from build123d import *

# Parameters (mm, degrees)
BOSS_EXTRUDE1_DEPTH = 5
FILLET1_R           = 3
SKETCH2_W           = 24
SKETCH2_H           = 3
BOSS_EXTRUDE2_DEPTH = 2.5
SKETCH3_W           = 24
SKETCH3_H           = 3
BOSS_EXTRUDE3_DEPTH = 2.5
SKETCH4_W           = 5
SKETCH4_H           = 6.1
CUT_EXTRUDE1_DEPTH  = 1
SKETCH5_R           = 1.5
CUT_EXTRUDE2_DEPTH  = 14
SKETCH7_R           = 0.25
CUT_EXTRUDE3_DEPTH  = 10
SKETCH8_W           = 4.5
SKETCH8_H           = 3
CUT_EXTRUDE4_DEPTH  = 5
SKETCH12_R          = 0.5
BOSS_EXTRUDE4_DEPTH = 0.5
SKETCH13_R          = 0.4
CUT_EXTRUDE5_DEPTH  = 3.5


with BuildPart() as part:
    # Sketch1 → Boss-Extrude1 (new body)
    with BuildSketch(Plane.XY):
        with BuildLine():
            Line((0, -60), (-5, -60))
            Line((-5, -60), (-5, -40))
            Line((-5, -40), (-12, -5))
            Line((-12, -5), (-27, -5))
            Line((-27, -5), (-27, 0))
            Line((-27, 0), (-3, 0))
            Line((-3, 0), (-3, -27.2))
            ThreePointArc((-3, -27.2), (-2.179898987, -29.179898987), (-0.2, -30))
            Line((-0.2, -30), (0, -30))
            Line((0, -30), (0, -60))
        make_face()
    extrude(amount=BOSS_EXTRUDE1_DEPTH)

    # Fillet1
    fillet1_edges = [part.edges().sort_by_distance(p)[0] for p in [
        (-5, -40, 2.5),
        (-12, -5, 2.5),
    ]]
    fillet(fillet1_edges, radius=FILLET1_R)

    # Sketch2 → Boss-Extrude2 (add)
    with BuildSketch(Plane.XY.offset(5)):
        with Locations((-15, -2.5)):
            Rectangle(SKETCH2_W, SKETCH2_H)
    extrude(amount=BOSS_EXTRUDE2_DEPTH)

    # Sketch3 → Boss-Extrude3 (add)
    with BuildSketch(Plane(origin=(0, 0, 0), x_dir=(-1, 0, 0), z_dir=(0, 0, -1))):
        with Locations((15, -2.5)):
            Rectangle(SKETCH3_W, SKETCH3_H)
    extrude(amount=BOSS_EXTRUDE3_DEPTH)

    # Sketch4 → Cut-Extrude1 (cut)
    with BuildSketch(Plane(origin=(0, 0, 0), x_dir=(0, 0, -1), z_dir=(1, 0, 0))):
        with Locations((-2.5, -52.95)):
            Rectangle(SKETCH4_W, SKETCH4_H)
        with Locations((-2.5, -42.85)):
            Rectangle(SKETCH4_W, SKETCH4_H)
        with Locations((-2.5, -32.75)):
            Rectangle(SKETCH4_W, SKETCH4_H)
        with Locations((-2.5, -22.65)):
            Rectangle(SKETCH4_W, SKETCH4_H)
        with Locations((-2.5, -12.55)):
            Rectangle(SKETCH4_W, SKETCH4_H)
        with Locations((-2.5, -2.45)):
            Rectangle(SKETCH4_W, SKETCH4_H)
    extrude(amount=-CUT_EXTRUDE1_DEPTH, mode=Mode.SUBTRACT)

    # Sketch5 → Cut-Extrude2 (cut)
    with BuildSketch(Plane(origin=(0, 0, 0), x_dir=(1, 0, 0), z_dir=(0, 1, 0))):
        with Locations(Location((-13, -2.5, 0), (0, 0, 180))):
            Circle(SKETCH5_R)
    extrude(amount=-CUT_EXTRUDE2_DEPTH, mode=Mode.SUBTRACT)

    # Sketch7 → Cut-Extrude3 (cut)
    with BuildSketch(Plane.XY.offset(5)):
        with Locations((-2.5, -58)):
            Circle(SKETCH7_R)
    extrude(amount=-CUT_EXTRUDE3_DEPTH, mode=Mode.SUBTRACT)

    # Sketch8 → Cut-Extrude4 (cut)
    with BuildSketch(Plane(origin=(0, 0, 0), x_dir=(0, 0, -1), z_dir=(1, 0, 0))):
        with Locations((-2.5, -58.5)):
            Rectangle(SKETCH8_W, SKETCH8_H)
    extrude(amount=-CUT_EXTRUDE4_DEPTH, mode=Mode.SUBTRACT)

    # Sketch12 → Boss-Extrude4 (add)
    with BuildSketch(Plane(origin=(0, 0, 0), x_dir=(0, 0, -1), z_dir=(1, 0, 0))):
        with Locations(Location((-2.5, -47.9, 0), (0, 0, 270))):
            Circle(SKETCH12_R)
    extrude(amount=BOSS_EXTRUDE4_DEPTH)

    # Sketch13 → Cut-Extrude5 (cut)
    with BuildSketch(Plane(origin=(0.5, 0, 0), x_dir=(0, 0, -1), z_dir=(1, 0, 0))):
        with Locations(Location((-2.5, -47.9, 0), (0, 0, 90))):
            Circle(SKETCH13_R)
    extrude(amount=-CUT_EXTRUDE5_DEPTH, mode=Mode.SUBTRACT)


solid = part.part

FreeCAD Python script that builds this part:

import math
import FreeCAD as App
import Part
import Sketcher
Q = App.Units.Quantity


def edges_at(feature, points):
    """Names of the edges that pass closest to the given points."""
    edges = feature.Shape.Edges
    near = lambda p: min(range(len(edges)), key=lambda i: edges[i].distToShape(Part.Vertex(*p))[0])
    return sorted({f"Edge{near(p) + 1}" for p in points})

doc = App.newDocument("Part")
body = doc.addObject("PartDesign::Body", "Body")

sketch1 = doc.addObject("Sketcher::SketchObject", "Sketch")
body.addObject(sketch1)
sketch1.AttachmentSupport = (doc.XY_Plane, [""])
sketch1.MapMode = "FlatFace"
sketch1.addGeometry([
    Part.LineSegment(App.Vector(-5, -60, 0), App.Vector(0, -60, 0)),
    Part.LineSegment(App.Vector(0, -60, 0), App.Vector(0, -30, 0)),
    Part.LineSegment(App.Vector(0, -30, 0), App.Vector(-0.2, -30, 0)),
    Part.ArcOfCircle(Part.Circle(App.Vector(-0.2, -27.2, 0), App.Vector(0, 0, 1), 2.8), math.radians(-180), math.radians(-90)),
    Part.LineSegment(App.Vector(-3, -27.2, 0), App.Vector(-3, 0, 0)),
    Part.LineSegment(App.Vector(-3, 0, 0), App.Vector(-27, 0, 0)),
    Part.LineSegment(App.Vector(-27, 0, 0), App.Vector(-27, -5, 0)),
    Part.LineSegment(App.Vector(-27, -5, 0), App.Vector(-12, -5, 0)),
    Part.LineSegment(App.Vector(-12, -5, 0), App.Vector(-5, -40, 0)),
    Part.LineSegment(App.Vector(-5, -40, 0), App.Vector(-5, -60, 0)),
], False)
sketch1.addConstraint([
    Sketcher.Constraint("Coincident", 0, 2, 1, 1),
    Sketcher.Constraint("Coincident", 1, 2, 2, 1),
    Sketcher.Constraint("Tangent", 2, 2, 3, 2),
    Sketcher.Constraint("Tangent", 3, 1, 4, 1),
    Sketcher.Constraint("Coincident", 4, 2, 5, 1),
    Sketcher.Constraint("Coincident", 5, 2, 6, 1),
    Sketcher.Constraint("Coincident", 6, 2, 7, 1),
    Sketcher.Constraint("Coincident", 7, 2, 8, 1),
    Sketcher.Constraint("Coincident", 8, 2, 9, 1),
    Sketcher.Constraint("Coincident", 9, 2, 0, 1),
    Sketcher.Constraint("Horizontal", 0),
    Sketcher.Constraint("Vertical", 1),
    Sketcher.Constraint("Horizontal", 2),
    Sketcher.Constraint("Vertical", 4),
    Sketcher.Constraint("Horizontal", 5),
    Sketcher.Constraint("Vertical", 6),
    Sketcher.Constraint("Horizontal", 7),
    Sketcher.Constraint("Vertical", 9),
    Sketcher.Constraint("PointOnObject", 0, 2, -2),
    Sketcher.Constraint("PointOnObject", 4, 2, -1),
    Sketcher.Constraint("Equal", 0, 6),
    Sketcher.Constraint("Radius", 3, Q("2.8 mm")),
    Sketcher.Constraint("DistanceX", 0, 1, 0, 2, Q("5 mm")),
    Sketcher.Constraint("DistanceX", 5, 2, 5, 1, Q("24 mm")),
    Sketcher.Constraint("DistanceX", 7, 1, 7, 2, Q("15 mm")),
    Sketcher.Constraint("DistanceY", 1, 1, 1, 2, Q("30 mm")),
    Sketcher.Constraint("DistanceY", 9, 2, 9, 1, Q("20 mm")),
    Sketcher.Constraint("DistanceX", 2, 2, 2, 1, Q("0.2 mm")),
    Sketcher.Constraint("DistanceY", 4, 1, 4, 2, Q("27.2 mm")),
])
pad1 = doc.addObject("PartDesign::Pad", "Pad")
body.addObject(pad1)
pad1.Profile = sketch1
pad1.Length = 5
doc.recompute()

fillet = doc.addObject("PartDesign::Fillet", "Fillet")
body.addObject(fillet)
fillet.Base = (pad1, edges_at(pad1, [(-5, -40, 2.5), (-12, -5, 2.5)]))
fillet.Radius = 3

sketch2 = doc.addObject("Sketcher::SketchObject", "Sketch001")
body.addObject(sketch2)
sketch2.AttachmentSupport = (doc.XY_Plane, [""])
sketch2.MapMode = "FlatFace"
sketch2.AttachmentOffset = App.Placement(App.Vector(0, 0, 5), App.Rotation())
sketch2.addGeometry([
    Part.LineSegment(App.Vector(-27, -1, 0), App.Vector(-27, -4, 0)),
    Part.LineSegment(App.Vector(-27, -4, 0), App.Vector(-3, -4, 0)),
    Part.LineSegment(App.Vector(-3, -4, 0), App.Vector(-3, -1, 0)),
    Part.LineSegment(App.Vector(-3, -1, 0), App.Vector(-27, -1, 0)),
], False)
sketch2.addConstraint([
    Sketcher.Constraint("Coincident", 0, 2, 1, 1),
    Sketcher.Constraint("Coincident", 1, 2, 2, 1),
    Sketcher.Constraint("Coincident", 2, 2, 3, 1),
    Sketcher.Constraint("Coincident", 3, 2, 0, 1),
    Sketcher.Constraint("Vertical", 0),
    Sketcher.Constraint("Horizontal", 1),
    Sketcher.Constraint("Vertical", 2),
    Sketcher.Constraint("Horizontal", 3),
    Sketcher.Constraint("DistanceX", 1, 1, 1, 2, Q("24 mm")),
    Sketcher.Constraint("DistanceY", 0, 2, 0, 1, Q("3 mm")),
    Sketcher.Constraint("DistanceX", 0, 2, -1, 1, Q("27 mm")),
    Sketcher.Constraint("DistanceY", 0, 2, -1, 1, Q("4 mm")),
])
pad2 = doc.addObject("PartDesign::Pad", "Pad001")
body.addObject(pad2)
pad2.Profile = sketch2
pad2.Length = 2.5

sketch3 = doc.addObject("Sketcher::SketchObject", "Sketch002")
body.addObject(sketch3)
sketch3.AttachmentSupport = (doc.XY_Plane, [""])
sketch3.MapMode = "FlatFace"
sketch3.addGeometry([
    Part.LineSegment(App.Vector(-3, -1, 0), App.Vector(-3, -4, 0)),
    Part.LineSegment(App.Vector(-3, -4, 0), App.Vector(-27, -4, 0)),
    Part.LineSegment(App.Vector(-27, -4, 0), App.Vector(-27, -1, 0)),
    Part.LineSegment(App.Vector(-27, -1, 0), App.Vector(-3, -1, 0)),
], False)
sketch3.addConstraint([
    Sketcher.Constraint("Coincident", 0, 2, 1, 1),
    Sketcher.Constraint("Coincident", 1, 2, 2, 1),
    Sketcher.Constraint("Coincident", 2, 2, 3, 1),
    Sketcher.Constraint("Coincident", 3, 2, 0, 1),
    Sketcher.Constraint("Vertical", 0),
    Sketcher.Constraint("Horizontal", 1),
    Sketcher.Constraint("Vertical", 2),
    Sketcher.Constraint("Horizontal", 3),
    Sketcher.Constraint("DistanceX", 1, 2, 1, 1, Q("24 mm")),
    Sketcher.Constraint("DistanceY", 0, 2, 0, 1, Q("3 mm")),
    Sketcher.Constraint("DistanceX", 0, 2, -1, 1, Q("3 mm")),
    Sketcher.Constraint("DistanceY", 0, 2, -1, 1, Q("4 mm")),
])
pad3 = doc.addObject("PartDesign::Pad", "Pad002")
body.addObject(pad3)
pad3.Profile = sketch3
pad3.Length = 2.5
pad3.Reversed = True

sketch4 = doc.addObject("Sketcher::SketchObject", "Sketch003")
body.addObject(sketch4)
sketch4.AttachmentSupport = (doc.YZ_Plane, [""])
sketch4.MapMode = "FlatFace"
sketch4.addGeometry([
    Part.LineSegment(App.Vector(-50, 5, 0), App.Vector(-56, 5, 0)),
    Part.LineSegment(App.Vector(-56, 5, 0), App.Vector(-56, 0, 0)),
    Part.LineSegment(App.Vector(-56, 0, 0), App.Vector(-50, 0, 0)),
    Part.LineSegment(App.Vector(-50, 0, 0), App.Vector(-50, 5, 0)),
    Part.LineSegment(App.Vector(-40, 5, 0), App.Vector(-46, 5, 0)),
    Part.LineSegment(App.Vector(-46, 5, 0), App.Vector(-46, 0, 0)),
    Part.LineSegment(App.Vector(-46, 0, 0), App.Vector(-40, 0, 0)),
    Part.LineSegment(App.Vector(-40, 0, 0), App.Vector(-40, 5, 0)),
    Part.LineSegment(App.Vector(-30, 5, 0), App.Vector(-36, 5, 0)),
    Part.LineSegment(App.Vector(-36, 5, 0), App.Vector(-36, 0, 0)),
    Part.LineSegment(App.Vector(-36, 0, 0), App.Vector(-30, 0, 0)),
    Part.LineSegment(App.Vector(-30, 0, 0), App.Vector(-30, 5, 0)),
    Part.LineSegment(App.Vector(-20, 5, 0), App.Vector(-26, 5, 0)),
    Part.LineSegment(App.Vector(-26, 5, 0), App.Vector(-26, 0, 0)),
    Part.LineSegment(App.Vector(-26, 0, 0), App.Vector(-20, 0, 0)),
    Part.LineSegment(App.Vector(-20, 0, 0), App.Vector(-20, 5, 0)),
    Part.LineSegment(App.Vector(-10, 5, 0), App.Vector(-16, 5, 0)),
    Part.LineSegment(App.Vector(-16, 5, 0), App.Vector(-16, 0, 0)),
    Part.LineSegment(App.Vector(-16, 0, 0), App.Vector(-10, 0, 0)),
    Part.LineSegment(App.Vector(-10, 0, 0), App.Vector(-10, 5, 0)),
    Part.LineSegment(App.Vector(1, 5, 0), App.Vector(-6, 5, 0)),
    Part.LineSegment(App.Vector(-6, 5, 0), App.Vector(-6, 0, 0)),
    Part.LineSegment(App.Vector(-6, 0, 0), App.Vector(1, 0, 0)),
    Part.LineSegment(App.Vector(1, 0, 0), App.Vector(1, 5, 0)),
], False)
sketch4.addConstraint([
    Sketcher.Constraint("Coincident", 0, 2, 1, 1),
    Sketcher.Constraint("Coincident", 1, 2, 2, 1),
    Sketcher.Constraint("Coincident", 2, 2, 3, 1),
    Sketcher.Constraint("Coincident", 3, 2, 0, 1),
    Sketcher.Constraint("Coincident", 4, 2, 5, 1),
    Sketcher.Constraint("Coincident", 5, 2, 6, 1),
    Sketcher.Constraint("Coincident", 6, 2, 7, 1),
    Sketcher.Constraint("Coincident", 7, 2, 4, 1),
    Sketcher.Constraint("Coincident", 8, 2, 9, 1),
    Sketcher.Constraint("Coincident", 9, 2, 10, 1),
    Sketcher.Constraint("Coincident", 10, 2, 11, 1),
    Sketcher.Constraint("Coincident", 11, 2, 8, 1),
    Sketcher.Constraint("Coincident", 12, 2, 13, 1),
    Sketcher.Constraint("Coincident", 13, 2, 14, 1),
    Sketcher.Constraint("Coincident", 14, 2, 15, 1),
    Sketcher.Constraint("Coincident", 15, 2, 12, 1),
    Sketcher.Constraint("Coincident", 16, 2, 17, 1),
    Sketcher.Constraint("Coincident", 17, 2, 18, 1),
    Sketcher.Constraint("Coincident", 18, 2, 19, 1),
    Sketcher.Constraint("Coincident", 19, 2, 16, 1),
    Sketcher.Constraint("Coincident", 20, 2, 21, 1),
    Sketcher.Constraint("Coincident", 21, 2, 22, 1),
    Sketcher.Constraint("Coincident", 22, 2, 23, 1),
    Sketcher.Constraint("Coincident", 23, 2, 20, 1),
    Sketcher.Constraint("Horizontal", 0),
    Sketcher.Constraint("Vertical", 1),
    Sketcher.Constraint("Horizontal", 2),
    Sketcher.Constraint("Vertical", 3),
    Sketcher.Constraint("Horizontal", 4),
    Sketcher.Constraint("Vertical", 5),
    Sketcher.Constraint("Horizontal", 6),
    Sketcher.Constraint("Vertical", 7),
    Sketcher.Constraint("Horizontal", 8),
    Sketcher.Constraint("Vertical", 9),
    Sketcher.Constraint("Horizontal", 10),
    Sketcher.Constraint("Vertical", 11),
    Sketcher.Constraint("Horizontal", 12),
    Sketcher.Constraint("Vertical", 13),
    Sketcher.Constraint("Horizontal", 14),
    Sketcher.Constraint("Vertical", 15),
    Sketcher.Constraint("Horizontal", 16),
    Sketcher.Constraint("Vertical", 17),
    Sketcher.Constraint("Horizontal", 18),
    Sketcher.Constraint("Vertical", 19),
    Sketcher.Constraint("Horizontal", 20),
    Sketcher.Constraint("Vertical", 21),
    Sketcher.Constraint("Horizontal", 22),
    Sketcher.Constraint("Vertical", 23),
    Sketcher.Constraint("PointOnObject", 1, 2, -1),
    Sketcher.Constraint("PointOnObject", 5, 2, -1),
    Sketcher.Constraint("PointOnObject", 9, 2, -1),
    Sketcher.Constraint("PointOnObject", 13, 2, -1),
    Sketcher.Constraint("PointOnObject", 17, 2, -1),
    Sketcher.Constraint("PointOnObject", 21, 2, -1),
    Sketcher.Constraint("Horizontal", 3, 2, 4, 2),
    Sketcher.Constraint("Horizontal", 7, 2, 8, 2),
    Sketcher.Constraint("Horizontal", 11, 2, 12, 2),
    Sketcher.Constraint("Horizontal", 15, 2, 16, 2),
    Sketcher.Constraint("Horizontal", 19, 2, 20, 2),
    Sketcher.Constraint("Equal", 2, 4),
    Sketcher.Constraint("Equal", 6, 8),
    Sketcher.Constraint("Equal", 10, 12),
    Sketcher.Constraint("Equal", 14, 16),
    Sketcher.Constraint("Equal", 18, 20),
    Sketcher.Constraint("DistanceY", 1, 2, 1, 1, Q("5 mm")),
    Sketcher.Constraint("DistanceX", 0, 2, 0, 1, Q("6.1 mm")),
    Sketcher.Constraint("DistanceX", 0, 2, -1, 1, Q("56 mm")),
    Sketcher.Constraint("DistanceX", 3, 2, 4, 2, Q("4 mm")),
    Sketcher.Constraint("DistanceX", 7, 2, 8, 2, Q("4 mm")),
    Sketcher.Constraint("DistanceX", 11, 2, 12, 2, Q("4 mm")),
    Sketcher.Constraint("DistanceX", 15, 2, 16, 2, Q("4 mm")),
    Sketcher.Constraint("DistanceX", 19, 2, 20, 2, Q("4 mm")),
])
pocket1 = doc.addObject("PartDesign::Pocket", "Pocket")
body.addObject(pocket1)
pocket1.Profile = sketch4
pocket1.Length = 1

sketch5 = doc.addObject("Sketcher::SketchObject", "Sketch004")
body.addObject(sketch5)
sketch5.AttachmentSupport = (doc.XZ_Plane, [""])
sketch5.MapMode = "FlatFace"
sketch5.addGeometry(Part.Circle(App.Vector(-13, 2.5, 0), App.Vector(0, 0, 1), 1.5), False)
sketch5.addConstraint([
    Sketcher.Constraint("Diameter", 0, Q("3 mm")),
    Sketcher.Constraint("DistanceX", 0, 3, -1, 1, Q("13 mm")),
    Sketcher.Constraint("DistanceY", -1, 1, 0, 3, Q("2.5 mm")),
])
pocket2 = doc.addObject("PartDesign::Pocket", "Pocket001")
body.addObject(pocket2)
pocket2.Profile = sketch5
pocket2.Length = 14
pocket2.Reversed = True

sketch6 = doc.addObject("Sketcher::SketchObject", "Sketch005")
body.addObject(sketch6)
sketch6.AttachmentSupport = (doc.XY_Plane, [""])
sketch6.MapMode = "FlatFace"
sketch6.AttachmentOffset = App.Placement(App.Vector(0, 0, 5), App.Rotation())
sketch6.addGeometry(Part.Circle(App.Vector(-2.5, -58, 0), App.Vector(0, 0, 1), 0.25), False)
sketch6.addConstraint([
    Sketcher.Constraint("Diameter", 0, Q("0.5 mm")),
    Sketcher.Constraint("DistanceY", 0, 3, -1, 1, Q("58 mm")),
    Sketcher.Constraint("DistanceX", 0, 3, -1, 1, Q("2.5 mm")),
])
pocket3 = doc.addObject("PartDesign::Pocket", "Pocket002")
body.addObject(pocket3)
pocket3.Profile = sketch6
pocket3.Length = 10

sketch7 = doc.addObject("Sketcher::SketchObject", "Sketch006")
body.addObject(sketch7)
sketch7.AttachmentSupport = (doc.YZ_Plane, [""])
sketch7.MapMode = "FlatFace"
sketch7.addGeometry([
    Part.LineSegment(App.Vector(-57, 4.8, 0), App.Vector(-60, 4.8, 0)),
    Part.LineSegment(App.Vector(-60, 4.8, 0), App.Vector(-60, 0.2, 0)),
    Part.LineSegment(App.Vector(-60, 0.2, 0), App.Vector(-57, 0.2, 0)),
    Part.LineSegment(App.Vector(-57, 0.2, 0), App.Vector(-57, 4.8, 0)),
], False)
sketch7.addConstraint([
    Sketcher.Constraint("Coincident", 0, 2, 1, 1),
    Sketcher.Constraint("Coincident", 1, 2, 2, 1),
    Sketcher.Constraint("Coincident", 2, 2, 3, 1),
    Sketcher.Constraint("Coincident", 3, 2, 0, 1),
    Sketcher.Constraint("Horizontal", 0),
    Sketcher.Constraint("Vertical", 1),
    Sketcher.Constraint("Horizontal", 2),
    Sketcher.Constraint("Vertical", 3),
    Sketcher.Constraint("DistanceX", 0, 2, 0, 1, Q("3 mm")),
    Sketcher.Constraint("DistanceY", 1, 2, 1, 1, Q("4.5 mm")),
    Sketcher.Constraint("DistanceX", 0, 2, -1, 1, Q("60 mm")),
    Sketcher.Constraint("DistanceY", -1, 1, 0, 2, Q("4.75 mm")),
])
pocket4 = doc.addObject("PartDesign::Pocket", "Pocket003")
body.addObject(pocket4)
pocket4.Profile = sketch7
pocket4.Length = 5

sketch8 = doc.addObject("Sketcher::SketchObject", "Sketch007")
body.addObject(sketch8)
sketch8.AttachmentSupport = (doc.YZ_Plane, [""])
sketch8.MapMode = "FlatFace"
sketch8.addGeometry(Part.Circle(App.Vector(-47.9, 2.5, 0), App.Vector(0, 0, 1), 0.5), False)
sketch8.addConstraint([
    Sketcher.Constraint("Diameter", 0, Q("1 mm")),
    Sketcher.Constraint("DistanceX", 0, 3, -1, 1, Q("47.9 mm")),
    Sketcher.Constraint("DistanceY", -1, 1, 0, 3, Q("2.5 mm")),
])
pad4 = doc.addObject("PartDesign::Pad", "Pad003")
body.addObject(pad4)
pad4.Profile = sketch8
pad4.Length = 0.5

sketch9 = doc.addObject("Sketcher::SketchObject", "Sketch008")
body.addObject(sketch9)
sketch9.AttachmentSupport = (doc.YZ_Plane, [""])
sketch9.MapMode = "FlatFace"
sketch9.AttachmentOffset = App.Placement(App.Vector(0, 0, 0.5), App.Rotation())
sketch9.addGeometry(Part.Circle(App.Vector(-47.9, 2.5, 0), App.Vector(0, 0, 1), 0.4), False)
sketch9.addConstraint([
    Sketcher.Constraint("Diameter", 0, Q("0.8 mm")),
    Sketcher.Constraint("DistanceX", 0, 3, -1, 1, Q("47.9 mm")),
    Sketcher.Constraint("DistanceY", -1, 1, 0, 3, Q("2.5 mm")),
])
pocket5 = doc.addObject("PartDesign::Pocket", "Pocket004")
body.addObject(pocket5)
pocket5.Profile = sketch9
pocket5.Length = 3.5

doc.recompute()
